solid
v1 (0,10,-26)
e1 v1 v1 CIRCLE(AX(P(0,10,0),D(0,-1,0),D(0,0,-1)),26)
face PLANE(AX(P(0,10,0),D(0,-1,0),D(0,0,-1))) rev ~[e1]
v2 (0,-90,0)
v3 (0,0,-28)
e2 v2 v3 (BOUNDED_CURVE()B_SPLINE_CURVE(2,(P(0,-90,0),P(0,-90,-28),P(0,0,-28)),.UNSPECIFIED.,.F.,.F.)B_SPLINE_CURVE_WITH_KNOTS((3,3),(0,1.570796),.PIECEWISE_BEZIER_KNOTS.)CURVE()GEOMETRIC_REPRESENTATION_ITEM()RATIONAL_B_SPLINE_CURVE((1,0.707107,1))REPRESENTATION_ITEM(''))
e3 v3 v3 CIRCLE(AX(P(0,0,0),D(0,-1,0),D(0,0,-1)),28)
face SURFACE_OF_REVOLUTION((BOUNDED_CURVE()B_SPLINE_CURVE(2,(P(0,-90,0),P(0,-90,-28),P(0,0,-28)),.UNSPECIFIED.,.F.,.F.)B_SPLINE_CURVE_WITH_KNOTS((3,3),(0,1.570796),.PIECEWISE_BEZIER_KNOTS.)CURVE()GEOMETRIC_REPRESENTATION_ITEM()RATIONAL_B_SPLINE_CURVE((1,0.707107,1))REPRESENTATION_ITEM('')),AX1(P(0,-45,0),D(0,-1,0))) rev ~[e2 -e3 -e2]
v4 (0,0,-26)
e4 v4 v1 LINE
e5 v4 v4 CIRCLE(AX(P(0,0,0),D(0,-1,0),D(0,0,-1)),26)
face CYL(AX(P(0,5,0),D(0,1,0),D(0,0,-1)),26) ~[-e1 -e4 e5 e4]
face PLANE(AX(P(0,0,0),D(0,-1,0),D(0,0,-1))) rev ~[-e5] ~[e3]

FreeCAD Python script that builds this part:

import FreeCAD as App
import Part
import Sketcher

V = App.Vector

doc = App.newDocument("Part")
body = doc.addObject("PartDesign::Body", "Body")

sketch1 = doc.addObject("Sketcher::SketchObject", "Sketch")
body.addObject(sketch1)
sketch1.AttachmentSupport = (doc.YZ_Plane, [""])
sketch1.MapMode = "FlatFace"
sketch1.addGeometry([
    Part.BSplineCurve([V(-90, 0, 0), V(-90, -28, 0), V(0, -28, 0)], [3, 3], [0, 1.570796], False, 2, [1, 0.707107, 1], False),
    Part.LineSegment(V(0, -28, 0), V(0, -26, 0)),
    Part.LineSegment(V(0, -26, 0), V(10, -26, 0)),
    Part.LineSegment(V(10, -26, 0), V(10, 0, 0)),
    Part.LineSegment(V(10, 0, 0), V(-90, 0, 0)),
], False)
sketch1.addConstraint([
    Sketcher.Constraint("Block", 0),
    Sketcher.Constraint("Coincident", 0, 2, 1, 1),
    Sketcher.Constraint("Coincident", 1, 2, 2, 1),
    Sketcher.Constraint("Coincident", 2, 2, 3, 1),
    Sketcher.Constraint("Coincident", 3, 2, 4, 1),
    Sketcher.Constraint("Coincident", 4, 2, 0, 1),
    Sketcher.Constraint("Vertical", 1),
    Sketcher.Constraint("Horizontal", 2),
    Sketcher.Constraint("Vertical", 3),
    Sketcher.Constraint("Horizontal", 4),
    Sketcher.Constraint("DistanceX", 2, 1, 2, 2, 10.0),
    Sketcher.Constraint("DistanceY", 1, 1, 1, 2, 2.0),
])
revolution = doc.addObject("PartDesign::Revolution", "Revolution")
body.addObject(revolution)
revolution.Profile = sketch1
revolution.ReferenceAxis = (sketch1, ["H_Axis"])
revolution.Angle = 360

doc.recompute()
